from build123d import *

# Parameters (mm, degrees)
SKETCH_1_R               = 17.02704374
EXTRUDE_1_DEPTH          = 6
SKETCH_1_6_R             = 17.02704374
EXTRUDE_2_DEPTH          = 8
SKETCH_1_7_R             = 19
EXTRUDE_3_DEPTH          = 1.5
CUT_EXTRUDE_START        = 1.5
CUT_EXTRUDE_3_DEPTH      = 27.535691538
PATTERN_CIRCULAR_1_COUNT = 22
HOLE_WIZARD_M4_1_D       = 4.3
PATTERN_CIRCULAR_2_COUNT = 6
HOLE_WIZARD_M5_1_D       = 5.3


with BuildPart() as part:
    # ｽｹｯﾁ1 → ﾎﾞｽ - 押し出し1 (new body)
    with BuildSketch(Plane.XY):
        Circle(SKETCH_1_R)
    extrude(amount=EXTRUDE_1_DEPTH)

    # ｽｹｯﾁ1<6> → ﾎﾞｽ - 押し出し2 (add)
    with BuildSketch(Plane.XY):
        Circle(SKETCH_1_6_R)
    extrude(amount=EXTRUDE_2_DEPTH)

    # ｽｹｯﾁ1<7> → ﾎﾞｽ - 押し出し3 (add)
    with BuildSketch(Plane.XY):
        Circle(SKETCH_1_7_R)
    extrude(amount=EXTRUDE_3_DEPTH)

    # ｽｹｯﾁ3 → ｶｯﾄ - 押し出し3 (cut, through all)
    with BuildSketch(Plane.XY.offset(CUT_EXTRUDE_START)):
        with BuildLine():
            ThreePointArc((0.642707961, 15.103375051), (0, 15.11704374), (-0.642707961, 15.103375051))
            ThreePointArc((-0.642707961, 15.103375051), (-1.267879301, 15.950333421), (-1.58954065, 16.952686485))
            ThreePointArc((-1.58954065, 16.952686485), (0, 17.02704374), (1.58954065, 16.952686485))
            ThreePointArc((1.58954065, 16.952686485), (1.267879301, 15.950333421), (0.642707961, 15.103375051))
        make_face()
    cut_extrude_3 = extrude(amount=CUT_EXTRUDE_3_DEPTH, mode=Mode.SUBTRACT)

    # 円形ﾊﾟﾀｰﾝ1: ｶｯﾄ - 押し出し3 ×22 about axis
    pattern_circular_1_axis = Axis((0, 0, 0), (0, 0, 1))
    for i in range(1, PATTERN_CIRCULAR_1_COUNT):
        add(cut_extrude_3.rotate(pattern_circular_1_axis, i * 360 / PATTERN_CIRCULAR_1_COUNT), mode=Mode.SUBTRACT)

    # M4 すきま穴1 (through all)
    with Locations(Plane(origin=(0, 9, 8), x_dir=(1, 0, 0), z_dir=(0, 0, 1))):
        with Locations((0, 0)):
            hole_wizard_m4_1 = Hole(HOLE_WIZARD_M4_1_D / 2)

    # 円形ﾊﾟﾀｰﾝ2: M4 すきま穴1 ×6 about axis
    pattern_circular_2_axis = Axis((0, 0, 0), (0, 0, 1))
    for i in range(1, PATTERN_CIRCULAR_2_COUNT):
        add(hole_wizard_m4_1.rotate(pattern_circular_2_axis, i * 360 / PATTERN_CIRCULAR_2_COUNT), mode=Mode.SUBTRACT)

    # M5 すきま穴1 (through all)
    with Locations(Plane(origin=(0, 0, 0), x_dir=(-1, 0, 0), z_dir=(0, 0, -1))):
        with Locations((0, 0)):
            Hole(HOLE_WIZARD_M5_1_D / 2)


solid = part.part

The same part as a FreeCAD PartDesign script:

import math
import FreeCAD as App
import Part
import Sketcher
from FreeCAD import Vector
Q = App.Units.Quantity

doc = App.newDocument("Part")
body = doc.addObject("PartDesign::Body", "Body")

sketch1 = body.newObject("Sketcher::SketchObject", "Sketch")
sketch1.AttachmentSupport = (doc.getObject("XY_Plane"), [""])
sketch1.MapMode = "FlatFace"
sketch1.addGeometry(Part.Circle(Vector(0, 0, 0), Vector(0, 0, 1), 17), False)
sketch1.addConstraint(Sketcher.Constraint("Coincident", 0, 3, -1, 1))
sketch1.addConstraint(Sketcher.Constraint("Diameter", 0, Q("34.054087 mm")))
pad1 = body.newObject("PartDesign::Pad", "Pad")
pad1.Profile = sketch1
pad1.Length = 6

sketch2 = body.newObject("Sketcher::SketchObject", "Sketch001")
sketch2.AttachmentSupport = (doc.getObject("XY_Plane"), [""])
sketch2.MapMode = "FlatFace"
sketch2.addGeometry(Part.Circle(Vector(0, 0, 0), Vector(0, 0, 1), 17), False)
sketch2.addConstraint(Sketcher.Constraint("Coincident", 0, 3, -1, 1))
sketch2.addConstraint(Sketcher.Constraint("Diameter", 0, Q("34.054087 mm")))
pad2 = body.newObject("PartDesign::Pad", "Pad001")
pad2.Profile = sketch2
pad2.Length = 8

sketch3 = body.newObject("Sketcher::SketchObject", "Sketch002")
sketch3.AttachmentSupport = (doc.getObject("XY_Plane"), [""])
sketch3.MapMode = "FlatFace"
sketch3.addGeometry(Part.Circle(Vector(0, 0, 0), Vector(0, 0, 1), 19), False)
sketch3.addConstraint(Sketcher.Constraint("Coincident", 0, 3, -1, 1))
sketch3.addConstraint(Sketcher.Constraint("Diameter", 0, Q("38 mm")))
pad3 = body.newObject("PartDesign::Pad", "Pad002")
pad3.Profile = sketch3
pad3.Length = 1.5

sketch4 = body.newObject("Sketcher::SketchObject", "Sketch003")
sketch4.AttachmentSupport = (doc.getObject("XY_Plane"), [""])
sketch4.MapMode = "FlatFace"
sketch4.AttachmentOffset = App.Placement(Vector(0, 0, 1.5), App.Rotation())
sketch4.addGeometry(Part.ArcOfCircle(Part.Circle(Vector(0, 0, 0), Vector(0, 0, 1), 15.1), math.radians(87.56), math.radians(92.44)), False)
sketch4.addGeometry(Part.ArcOfCircle(Part.Circle(Vector(-1.6, 17.4, 0), Vector(0, 0, 1), 3.3), math.radians(-46), math.radians(-8)), False)
sketch4.addGeometry(Part.ArcOfCircle(Part.Circle(Vector(0, 0, 0), Vector(0, 0, 1), 17), math.radians(84.64), math.radians(95.36)), False)
sketch4.addGeometry(Part.ArcOfCircle(Part.Circle(Vector(1.6, 17.4, 0), Vector(0, 0, 1), 3.3), math.radians(-172), math.radians(-134)), False)
sketch4.addConstraint(Sketcher.Constraint("Coincident", 0, 1, 1, 1))
sketch4.addConstraint(Sketcher.Constraint("Coincident", 1, 2, 2, 1))
sketch4.addConstraint(Sketcher.Constraint("Coincident", 2, 2, 3, 1))
sketch4.addConstraint(Sketcher.Constraint("Coincident", 3, 2, 0, 2))
sketch4.addConstraint(Sketcher.Constraint("Coincident", 0, 3, -1, 1))
sketch4.addConstraint(Sketcher.Constraint("Coincident", 2, 3, -1, 1))
sketch4.addConstraint(Sketcher.Constraint("Equal", 1, 3))
sketch4.addConstraint(Sketcher.Constraint("Symmetric", 1, 3, 3, 3, -2))
sketch4.addConstraint(Sketcher.Constraint("Radius", 1, Q("3.25 mm")))
sketch4.addConstraint(Sketcher.Constraint("DistanceX", 1, 3, 3, 3, Q("3.25 mm")))
sketch4.addConstraint(Sketcher.Constraint("Radius", 0, Q("15.117044 mm")))
sketch4.addConstraint(Sketcher.Constraint("Radius", 2, Q("17.027044 mm")))
sketch4.addConstraint(Sketcher.Constraint("DistanceX", -1, 1, 1, 2, Q("1.589541 mm")))
pocket1 = body.newObject("PartDesign::Pocket", "Pocket")
pocket1.Profile = sketch4
pocket1.Type = "ThroughAll"
pocket1.Reversed = True
doc.recompute()

polarpattern = body.newObject("PartDesign::PolarPattern", "PolarPattern")
polarpattern.Originals = [pocket1]
polarpattern.Axis = (doc.getObject("Z_Axis"), [""])
polarpattern.Angle = 360
polarpattern.Occurrences = 22
body.Tip = polarpattern

sketch5 = body.newObject("Sketcher::SketchObject", "Sketch004")
sketch5.AttachmentSupport = (doc.getObject("XY_Plane"), [""])
sketch5.MapMode = "FlatFace"
sketch5.AttachmentOffset = App.Placement(Vector(0, 0, 8), App.Rotation())
sketch5.addGeometry(Part.Circle(Vector(0, 9, 0), Vector(0, 0, 1), 2.1), False)
sketch5.addConstraint(Sketcher.Constraint("PointOnObject", 0, 3, -2))
sketch5.addConstraint(Sketcher.Constraint("Diameter", 0, Q("4.3 mm")))
sketch5.addConstraint(Sketcher.Constraint("DistanceY", -1, 1, 0, 3, Q("9 mm")))
doc.recompute()
hole = body.newObject("PartDesign::Hole", "Hole")
hole.Profile = sketch5
hole.ThreadType = "None"
hole.Diameter = 4.3
hole.DepthType = "ThroughAll"
doc.recompute()

polarpattern2 = body.newObject("PartDesign::PolarPattern", "PolarPattern001")
polarpattern2.Originals = [hole]
polarpattern2.Axis = (doc.getObject("Z_Axis"), [""])
polarpattern2.Angle = 360
polarpattern2.Occurrences = 6
body.Tip = polarpattern2

sketch6 = body.newObject("Sketcher::SketchObject", "Sketch005")
sketch6.AttachmentSupport = (doc.getObject("XY_Plane"), [""])
sketch6.MapMode = "FlatFace"
sketch6.addGeometry(Part.Circle(Vector(0, 0, 0), Vector(0, 0, 1), 2.6), False)
sketch6.addConstraint(Sketcher.Constraint("Coincident", 0, 3, -1, 1))
sketch6.addConstraint(Sketcher.Constraint("Diameter", 0, Q("5.3 mm")))
doc.recompute()
hole2 = body.newObject("PartDesign::Hole", "Hole001")
hole2.Profile = sketch6
hole2.ThreadType = "None"
hole2.Diameter = 5.3
hole2.DepthType = "ThroughAll"
hole2.Reversed = True

doc.recompute()
